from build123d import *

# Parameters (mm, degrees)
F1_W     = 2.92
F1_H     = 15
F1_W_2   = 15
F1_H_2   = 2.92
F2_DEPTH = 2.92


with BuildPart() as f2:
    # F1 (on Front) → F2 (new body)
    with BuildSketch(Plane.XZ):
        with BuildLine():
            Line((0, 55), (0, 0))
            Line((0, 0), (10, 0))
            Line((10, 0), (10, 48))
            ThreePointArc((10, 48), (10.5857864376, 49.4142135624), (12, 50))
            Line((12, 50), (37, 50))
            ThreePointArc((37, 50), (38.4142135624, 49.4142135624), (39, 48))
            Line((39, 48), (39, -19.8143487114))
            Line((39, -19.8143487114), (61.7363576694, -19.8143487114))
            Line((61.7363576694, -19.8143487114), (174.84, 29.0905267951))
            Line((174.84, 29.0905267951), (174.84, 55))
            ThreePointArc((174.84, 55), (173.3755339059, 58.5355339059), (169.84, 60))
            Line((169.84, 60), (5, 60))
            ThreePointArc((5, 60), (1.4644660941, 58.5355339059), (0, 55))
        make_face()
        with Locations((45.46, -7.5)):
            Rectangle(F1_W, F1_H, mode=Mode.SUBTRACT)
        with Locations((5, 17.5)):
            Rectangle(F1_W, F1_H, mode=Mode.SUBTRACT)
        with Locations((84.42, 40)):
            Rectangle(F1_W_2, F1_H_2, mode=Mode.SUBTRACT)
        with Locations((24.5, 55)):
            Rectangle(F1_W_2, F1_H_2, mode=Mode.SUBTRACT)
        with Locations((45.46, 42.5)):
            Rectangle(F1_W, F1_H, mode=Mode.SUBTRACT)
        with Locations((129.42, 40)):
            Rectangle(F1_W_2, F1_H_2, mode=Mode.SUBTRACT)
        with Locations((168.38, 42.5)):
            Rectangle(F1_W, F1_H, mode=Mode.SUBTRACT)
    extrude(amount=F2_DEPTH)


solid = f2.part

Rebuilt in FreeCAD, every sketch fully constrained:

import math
import FreeCAD as App
import Part
import Sketcher

V = App.Vector
Q = App.Units.Quantity

doc = App.newDocument("Part")
params = doc.addObject("Spreadsheet::Sheet", "Params")
for row, (alias, value) in enumerate([
    ("sketch1_radius", "2 mm"),
    ("sketch1_radius2", "5 mm"),
    ("sketch1_width", "10 mm"),
    ("sketch1_width2", "25 mm"),
    ("sketch1_width3", "15 mm"),
    ("pad1_length", "2.92 mm"),
], start=1):
    params.set(f"A{row}", alias)
    params.set(f"B{row}", "=" + value)
    params.setAlias(f"B{row}", alias)

body = doc.addObject("PartDesign::Body", "Body")

# Sketch on XZ plane
sketch1 = body.newObject("Sketcher::SketchObject", "Sketch")
sketch1.AttachmentSupport = (doc.getObject("XZ_Plane"), [""])
sketch1.MapMode = "FlatFace"
sketch1.addGeometry([
    Part.LineSegment(V(0, 55, 0), V(0, 0, 0)),  # 0
    Part.LineSegment(V(0, 0, 0), V(10, 0, 0)),  # 1
    Part.LineSegment(V(10, 0, 0), V(10, 48, 0)),  # 2
    Part.ArcOfCircle(Part.Circle(V(12, 48, 0), V(0, 0, 1), 2), math.radians(90), math.radians(180)),  # 3
    Part.LineSegment(V(12, 50, 0), V(37, 50, 0)),  # 4
    Part.ArcOfCircle(Part.Circle(V(37, 48, 0), V(0, 0, 1), 2), math.radians(0), math.radians(90)),  # 5
    Part.LineSegment(V(39, 48, 0), V(39, -19.814349, 0)),  # 6
    Part.LineSegment(V(39, -19.814349, 0), V(61.736358, -19.814349, 0)),  # 7
    Part.LineSegment(V(61.736358, -19.814349, 0), V(174.84, 29.090527, 0)),  # 8
    Part.LineSegment(V(174.84, 29.090527, 0), V(174.84, 55, 0)),  # 9
    Part.ArcOfCircle(Part.Circle(V(169.84, 55, 0), V(0, 0, 1), 5), math.radians(0), math.radians(90)),  # 10
    Part.LineSegment(V(169.84, 60, 0), V(5, 60, 0)),  # 11
    Part.ArcOfCircle(Part.Circle(V(5, 55, 0), V(0, 0, 1), 5), math.radians(90), math.radians(180)),  # 12
    Part.LineSegment(V(46.92, -15, 0), V(44, -15, 0)),  # 13
    Part.LineSegment(V(44, -15, 0), V(44, 0, 0)),  # 14
    Part.LineSegment(V(44, 0, 0), V(46.92, 0, 0)),  # 15
    Part.LineSegment(V(46.92, 0, 0), V(46.92, -15, 0)),  # 16
    Part.LineSegment(V(6.46, 10, 0), V(3.54, 10, 0)),  # 17
    Part.LineSegment(V(3.54, 10, 0), V(3.54, 25, 0)),  # 18
    Part.LineSegment(V(3.54, 25, 0), V(6.46, 25, 0)),  # 19
    Part.LineSegment(V(6.46, 25, 0), V(6.46, 10, 0)),  # 20
    Part.LineSegment(V(32, 53.54, 0), V(17, 53.54, 0)),  # 21
    Part.LineSegment(V(17, 53.54, 0), V(17, 56.46, 0)),  # 22
    Part.LineSegment(V(17, 56.46, 0), V(32, 56.46, 0)),  # 23
    Part.LineSegment(V(32, 56.46, 0), V(32, 53.54, 0)),  # 24
    Part.LineSegment(V(46.92, 35, 0), V(44, 35, 0)),  # 25
    Part.LineSegment(V(44, 35, 0), V(44, 50, 0)),  # 26
    Part.LineSegment(V(44, 50, 0), V(46.92, 50, 0)),  # 27
    Part.LineSegment(V(46.92, 50, 0), V(46.92, 35, 0)),  # 28
    Part.LineSegment(V(91.92, 38.54, 0), V(76.92, 38.54, 0)),  # 29
    Part.LineSegment(V(76.92, 38.54, 0), V(76.92, 41.46, 0)),  # 30
    Part.LineSegment(V(76.92, 41.46, 0), V(91.92, 41.46, 0)),  # 31
    Part.LineSegment(V(91.92, 41.46, 0), V(91.92, 38.54, 0)),  # 32
    Part.LineSegment(V(136.92, 38.54, 0), V(121.92, 38.54, 0)),  # 33
    Part.LineSegment(V(121.92, 38.54, 0), V(121.92, 41.46, 0)),  # 34
    Part.LineSegment(V(121.92, 41.46, 0), V(136.92, 41.46, 0)),  # 35
    Part.LineSegment(V(136.92, 41.46, 0), V(136.92, 38.54, 0)),  # 36
    Part.LineSegment(V(169.84, 35, 0), V(166.92, 35, 0)),  # 37
    Part.LineSegment(V(166.92, 35, 0), V(166.92, 50, 0)),  # 38
    Part.LineSegment(V(166.92, 50, 0), V(169.84, 50, 0)),  # 39
    Part.LineSegment(V(169.84, 50, 0), V(169.84, 35, 0)),  # 40
], False)
sketch1.addConstraint([
    Sketcher.Constraint("Coincident", 0, 2, 1, 1),
    Sketcher.Constraint("Coincident", 1, 2, 2, 1),
    Sketcher.Constraint("Tangent", 2, 2, 3, 2),
    Sketcher.Constraint("Tangent", 3, 1, 4, 1),
    Sketcher.Constraint("Tangent", 4, 2, 5, 2),
    Sketcher.Constraint("Tangent", 5, 1, 6, 1),
    Sketcher.Constraint("Coincident", 6, 2, 7, 1),
    Sketcher.Constraint("Coincident", 7, 2, 8, 1),
    Sketcher.Constraint("Coincident", 8, 2, 9, 1),
    Sketcher.Constraint("Tangent", 9, 2, 10, 1),
    Sketcher.Constraint("Tangent", 10, 2, 11, 1),
    Sketcher.Constraint("Tangent", 11, 2, 12, 1),
    Sketcher.Constraint("Tangent", 12, 2, 0, 1),
    Sketcher.Constraint("Coincident", 13, 2, 14, 1),
    Sketcher.Constraint("Coincident", 14, 2, 15, 1),
    Sketcher.Constraint("Coincident", 15, 2, 16, 1),
    Sketcher.Constraint("Coincident", 16, 2, 13, 1),
    Sketcher.Constraint("Coincident", 17, 2, 18, 1),
    Sketcher.Constraint("Coincident", 18, 2, 19, 1),
    Sketcher.Constraint("Coincident", 19, 2, 20, 1),
    Sketcher.Constraint("Coincident", 20, 2, 17, 1),
    Sketcher.Constraint("Coincident", 21, 2, 22, 1),
    Sketcher.Constraint("Coincident", 22, 2, 23, 1),
    Sketcher.Constraint("Coincident", 23, 2, 24, 1),
    Sketcher.Constraint("Coincident", 24, 2, 21, 1),
    Sketcher.Constraint("Coincident", 25, 2, 26, 1),
    Sketcher.Constraint("Coincident", 26, 2, 27, 1),
    Sketcher.Constraint("Coincident", 27, 2, 28, 1),
    Sketcher.Constraint("Coincident", 28, 2, 25, 1),
    Sketcher.Constraint("Coincident", 29, 2, 30, 1),
    Sketcher.Constraint("Coincident", 30, 2, 31, 1),
    Sketcher.Constraint("Coincident", 31, 2, 32, 1),
    Sketcher.Constraint("Coincident", 32, 2, 29, 1),
    Sketcher.Constraint("Coincident", 33, 2, 34, 1),
    Sketcher.Constraint("Coincident", 34, 2, 35, 1),
    Sketcher.Constraint("Coincident", 35, 2, 36, 1),
    Sketcher.Constraint("Coincident", 36, 2, 33, 1),
    Sketcher.Constraint("Coincident", 37, 2, 38, 1),
    Sketcher.Constraint("Coincident", 38, 2, 39, 1),
    Sketcher.Constraint("Coincident", 39, 2, 40, 1),
    Sketcher.Constraint("Coincident", 40, 2, 37, 1),
    Sketcher.Constraint("Vertical", 0),
    Sketcher.Constraint("Horizontal", 1),
    Sketcher.Constraint("Vertical", 2),
    Sketcher.Constraint("Horizontal", 4),
    Sketcher.Constraint("Vertical", 6),
    Sketcher.Constraint("Horizontal", 7),
    Sketcher.Constraint("Vertical", 9),
    Sketcher.Constraint("Horizontal", 11),
    Sketcher.Constraint("Horizontal", 13),
    Sketcher.Constraint("Vertical", 14),
    Sketcher.Constraint("Horizontal", 15),
    Sketcher.Constraint("Vertical", 16),
    Sketcher.Constraint("Horizontal", 17),
    Sketcher.Constraint("Vertical", 18),
    Sketcher.Constraint("Horizontal", 19),
    Sketcher.Constraint("Vertical", 20),
    Sketcher.Constraint("Horizontal", 21),
    Sketcher.Constraint("Vertical", 22),
    Sketcher.Constraint("Horizontal", 23),
    Sketcher.Constraint("Vertical", 24),
    Sketcher.Constraint("Horizontal", 25),
    Sketcher.Constraint("Vertical", 26),
    Sketcher.Constraint("Horizontal", 27),
    Sketcher.Constraint("Vertical", 28),
    Sketcher.Constraint("Horizontal", 29),
    Sketcher.Constraint("Vertical", 30),
    Sketcher.Constraint("Horizontal", 31),
    Sketcher.Constraint("Vertical", 32),
    Sketcher.Constraint("Horizontal", 33),
    Sketcher.Constraint("Vertical", 34),
    Sketcher.Constraint("Horizontal", 35),
    Sketcher.Constraint("Vertical", 36),
    Sketcher.Constraint("Horizontal", 37),
    Sketcher.Constraint("Vertical", 38),
    Sketcher.Constraint("Horizontal", 39),
    Sketcher.Constraint("Vertical", 40),
    Sketcher.Constraint("Coincident", 0, 2, -1, 1),
    Sketcher.Constraint("Equal", 3, 5),
    Sketcher.Constraint("Equal", 10, 12),
    Sketcher.Constraint("PointOnObject", 14, 2, -1),
    Sketcher.Constraint("Horizontal", 4, 2, 26, 2),
    Sketcher.Constraint("Horizontal", 32, 2, 33, 2),
    Sketcher.Constraint("Horizontal", 31, 2, 34, 2),
    Sketcher.Constraint("Horizontal", 28, 2, 37, 2),
    Sketcher.Constraint("Horizontal", 27, 2, 38, 2),
    Sketcher.Constraint("Vertical", 14, 2, 25, 2),
    Sketcher.Constraint("Vertical", 16, 2, 27, 2),
    Sketcher.Constraint("Vertical", 10, 2, 39, 2),
    Sketcher.Constraint("Equal", 15, 17),
    Sketcher.Constraint("Equal", 23, 29),
    Sketcher.Constraint("Equal", 31, 33),
    Sketcher.Constraint("Equal", 27, 37),
    Sketcher.Constraint("Equal", 35, 14),
    Sketcher.Constraint("Equal", 16, 18),
    Sketcher.Constraint("Equal", 39, 22),
    Sketcher.Constraint("Equal", 20, 26),
    Sketcher.Constraint("Equal", 24, 30),
    Sketcher.Constraint("Radius", 3, Q("2 mm")),
    Sketcher.Constraint("Radius", 10, Q("5 mm")),
    Sketcher.Constraint("DistanceX", 1, 1, 1, 2, Q("10 mm")),
    Sketcher.Constraint("DistanceX", 4, 1, 4, 2, Q("25 mm")),
    Sketcher.Constraint("DistanceX", 21, 2, 21, 1, Q("15 mm")),
    Sketcher.Constraint("DistanceY", 0, 2, 0, 1, Q("55 mm")),
    Sketcher.Constraint("DistanceY", 2, 1, 2, 2, Q("48 mm")),
    Sketcher.Constraint("DistanceX", -1, 1, 13, 2, Q("44 mm")),
    Sketcher.Constraint("DistanceY", -1, 1, 17, 2, Q("10 mm")),
    Sketcher.Constraint("DistanceX", -1, 1, 21, 2, Q("17 mm")),
    Sketcher.Constraint("DistanceX", 28, 2, 29, 2, Q("30 mm")),
    Sketcher.Constraint("DistanceX", 32, 2, 33, 2, Q("30 mm")),
    Sketcher.Constraint("DistanceX", 36, 2, 37, 2, Q("30 mm")),
    Sketcher.Constraint("DistanceX", 11, 2, 11, 1, Q("164.84 mm")),
    Sketcher.Constraint("DistanceX", -1, 1, 17, 2, Q("3.54 mm")),
    Sketcher.Constraint("DistanceY", -1, 1, 21, 2, Q("53.54 mm")),
    Sketcher.Constraint("DistanceY", -1, 1, 29, 2, Q("38.54 mm")),
    Sketcher.Constraint("DistanceY", 6, 2, 6, 1, Q("67.814349 mm")),
    Sketcher.Constraint("DistanceX", 7, 1, 7, 2, Q("22.736358 mm")),
    Sketcher.Constraint("DistanceY", 9, 1, 9, 2, Q("25.909473 mm")),
])
sketch1.setExpression("Constraints[98]", "Params.sketch1_radius")
sketch1.setExpression("Constraints[99]", "Params.sketch1_radius2")
sketch1.setExpression("Constraints[100]", "Params.sketch1_width")
sketch1.setExpression("Constraints[101]", "Params.sketch1_width2")
sketch1.setExpression("Constraints[102]", "Params.sketch1_width3")
pad1 = body.newObject("PartDesign::Pad", "Pad")
pad1.Profile = sketch1
pad1.setExpression("Length", "Params.pad1_length")

doc.recompute()
